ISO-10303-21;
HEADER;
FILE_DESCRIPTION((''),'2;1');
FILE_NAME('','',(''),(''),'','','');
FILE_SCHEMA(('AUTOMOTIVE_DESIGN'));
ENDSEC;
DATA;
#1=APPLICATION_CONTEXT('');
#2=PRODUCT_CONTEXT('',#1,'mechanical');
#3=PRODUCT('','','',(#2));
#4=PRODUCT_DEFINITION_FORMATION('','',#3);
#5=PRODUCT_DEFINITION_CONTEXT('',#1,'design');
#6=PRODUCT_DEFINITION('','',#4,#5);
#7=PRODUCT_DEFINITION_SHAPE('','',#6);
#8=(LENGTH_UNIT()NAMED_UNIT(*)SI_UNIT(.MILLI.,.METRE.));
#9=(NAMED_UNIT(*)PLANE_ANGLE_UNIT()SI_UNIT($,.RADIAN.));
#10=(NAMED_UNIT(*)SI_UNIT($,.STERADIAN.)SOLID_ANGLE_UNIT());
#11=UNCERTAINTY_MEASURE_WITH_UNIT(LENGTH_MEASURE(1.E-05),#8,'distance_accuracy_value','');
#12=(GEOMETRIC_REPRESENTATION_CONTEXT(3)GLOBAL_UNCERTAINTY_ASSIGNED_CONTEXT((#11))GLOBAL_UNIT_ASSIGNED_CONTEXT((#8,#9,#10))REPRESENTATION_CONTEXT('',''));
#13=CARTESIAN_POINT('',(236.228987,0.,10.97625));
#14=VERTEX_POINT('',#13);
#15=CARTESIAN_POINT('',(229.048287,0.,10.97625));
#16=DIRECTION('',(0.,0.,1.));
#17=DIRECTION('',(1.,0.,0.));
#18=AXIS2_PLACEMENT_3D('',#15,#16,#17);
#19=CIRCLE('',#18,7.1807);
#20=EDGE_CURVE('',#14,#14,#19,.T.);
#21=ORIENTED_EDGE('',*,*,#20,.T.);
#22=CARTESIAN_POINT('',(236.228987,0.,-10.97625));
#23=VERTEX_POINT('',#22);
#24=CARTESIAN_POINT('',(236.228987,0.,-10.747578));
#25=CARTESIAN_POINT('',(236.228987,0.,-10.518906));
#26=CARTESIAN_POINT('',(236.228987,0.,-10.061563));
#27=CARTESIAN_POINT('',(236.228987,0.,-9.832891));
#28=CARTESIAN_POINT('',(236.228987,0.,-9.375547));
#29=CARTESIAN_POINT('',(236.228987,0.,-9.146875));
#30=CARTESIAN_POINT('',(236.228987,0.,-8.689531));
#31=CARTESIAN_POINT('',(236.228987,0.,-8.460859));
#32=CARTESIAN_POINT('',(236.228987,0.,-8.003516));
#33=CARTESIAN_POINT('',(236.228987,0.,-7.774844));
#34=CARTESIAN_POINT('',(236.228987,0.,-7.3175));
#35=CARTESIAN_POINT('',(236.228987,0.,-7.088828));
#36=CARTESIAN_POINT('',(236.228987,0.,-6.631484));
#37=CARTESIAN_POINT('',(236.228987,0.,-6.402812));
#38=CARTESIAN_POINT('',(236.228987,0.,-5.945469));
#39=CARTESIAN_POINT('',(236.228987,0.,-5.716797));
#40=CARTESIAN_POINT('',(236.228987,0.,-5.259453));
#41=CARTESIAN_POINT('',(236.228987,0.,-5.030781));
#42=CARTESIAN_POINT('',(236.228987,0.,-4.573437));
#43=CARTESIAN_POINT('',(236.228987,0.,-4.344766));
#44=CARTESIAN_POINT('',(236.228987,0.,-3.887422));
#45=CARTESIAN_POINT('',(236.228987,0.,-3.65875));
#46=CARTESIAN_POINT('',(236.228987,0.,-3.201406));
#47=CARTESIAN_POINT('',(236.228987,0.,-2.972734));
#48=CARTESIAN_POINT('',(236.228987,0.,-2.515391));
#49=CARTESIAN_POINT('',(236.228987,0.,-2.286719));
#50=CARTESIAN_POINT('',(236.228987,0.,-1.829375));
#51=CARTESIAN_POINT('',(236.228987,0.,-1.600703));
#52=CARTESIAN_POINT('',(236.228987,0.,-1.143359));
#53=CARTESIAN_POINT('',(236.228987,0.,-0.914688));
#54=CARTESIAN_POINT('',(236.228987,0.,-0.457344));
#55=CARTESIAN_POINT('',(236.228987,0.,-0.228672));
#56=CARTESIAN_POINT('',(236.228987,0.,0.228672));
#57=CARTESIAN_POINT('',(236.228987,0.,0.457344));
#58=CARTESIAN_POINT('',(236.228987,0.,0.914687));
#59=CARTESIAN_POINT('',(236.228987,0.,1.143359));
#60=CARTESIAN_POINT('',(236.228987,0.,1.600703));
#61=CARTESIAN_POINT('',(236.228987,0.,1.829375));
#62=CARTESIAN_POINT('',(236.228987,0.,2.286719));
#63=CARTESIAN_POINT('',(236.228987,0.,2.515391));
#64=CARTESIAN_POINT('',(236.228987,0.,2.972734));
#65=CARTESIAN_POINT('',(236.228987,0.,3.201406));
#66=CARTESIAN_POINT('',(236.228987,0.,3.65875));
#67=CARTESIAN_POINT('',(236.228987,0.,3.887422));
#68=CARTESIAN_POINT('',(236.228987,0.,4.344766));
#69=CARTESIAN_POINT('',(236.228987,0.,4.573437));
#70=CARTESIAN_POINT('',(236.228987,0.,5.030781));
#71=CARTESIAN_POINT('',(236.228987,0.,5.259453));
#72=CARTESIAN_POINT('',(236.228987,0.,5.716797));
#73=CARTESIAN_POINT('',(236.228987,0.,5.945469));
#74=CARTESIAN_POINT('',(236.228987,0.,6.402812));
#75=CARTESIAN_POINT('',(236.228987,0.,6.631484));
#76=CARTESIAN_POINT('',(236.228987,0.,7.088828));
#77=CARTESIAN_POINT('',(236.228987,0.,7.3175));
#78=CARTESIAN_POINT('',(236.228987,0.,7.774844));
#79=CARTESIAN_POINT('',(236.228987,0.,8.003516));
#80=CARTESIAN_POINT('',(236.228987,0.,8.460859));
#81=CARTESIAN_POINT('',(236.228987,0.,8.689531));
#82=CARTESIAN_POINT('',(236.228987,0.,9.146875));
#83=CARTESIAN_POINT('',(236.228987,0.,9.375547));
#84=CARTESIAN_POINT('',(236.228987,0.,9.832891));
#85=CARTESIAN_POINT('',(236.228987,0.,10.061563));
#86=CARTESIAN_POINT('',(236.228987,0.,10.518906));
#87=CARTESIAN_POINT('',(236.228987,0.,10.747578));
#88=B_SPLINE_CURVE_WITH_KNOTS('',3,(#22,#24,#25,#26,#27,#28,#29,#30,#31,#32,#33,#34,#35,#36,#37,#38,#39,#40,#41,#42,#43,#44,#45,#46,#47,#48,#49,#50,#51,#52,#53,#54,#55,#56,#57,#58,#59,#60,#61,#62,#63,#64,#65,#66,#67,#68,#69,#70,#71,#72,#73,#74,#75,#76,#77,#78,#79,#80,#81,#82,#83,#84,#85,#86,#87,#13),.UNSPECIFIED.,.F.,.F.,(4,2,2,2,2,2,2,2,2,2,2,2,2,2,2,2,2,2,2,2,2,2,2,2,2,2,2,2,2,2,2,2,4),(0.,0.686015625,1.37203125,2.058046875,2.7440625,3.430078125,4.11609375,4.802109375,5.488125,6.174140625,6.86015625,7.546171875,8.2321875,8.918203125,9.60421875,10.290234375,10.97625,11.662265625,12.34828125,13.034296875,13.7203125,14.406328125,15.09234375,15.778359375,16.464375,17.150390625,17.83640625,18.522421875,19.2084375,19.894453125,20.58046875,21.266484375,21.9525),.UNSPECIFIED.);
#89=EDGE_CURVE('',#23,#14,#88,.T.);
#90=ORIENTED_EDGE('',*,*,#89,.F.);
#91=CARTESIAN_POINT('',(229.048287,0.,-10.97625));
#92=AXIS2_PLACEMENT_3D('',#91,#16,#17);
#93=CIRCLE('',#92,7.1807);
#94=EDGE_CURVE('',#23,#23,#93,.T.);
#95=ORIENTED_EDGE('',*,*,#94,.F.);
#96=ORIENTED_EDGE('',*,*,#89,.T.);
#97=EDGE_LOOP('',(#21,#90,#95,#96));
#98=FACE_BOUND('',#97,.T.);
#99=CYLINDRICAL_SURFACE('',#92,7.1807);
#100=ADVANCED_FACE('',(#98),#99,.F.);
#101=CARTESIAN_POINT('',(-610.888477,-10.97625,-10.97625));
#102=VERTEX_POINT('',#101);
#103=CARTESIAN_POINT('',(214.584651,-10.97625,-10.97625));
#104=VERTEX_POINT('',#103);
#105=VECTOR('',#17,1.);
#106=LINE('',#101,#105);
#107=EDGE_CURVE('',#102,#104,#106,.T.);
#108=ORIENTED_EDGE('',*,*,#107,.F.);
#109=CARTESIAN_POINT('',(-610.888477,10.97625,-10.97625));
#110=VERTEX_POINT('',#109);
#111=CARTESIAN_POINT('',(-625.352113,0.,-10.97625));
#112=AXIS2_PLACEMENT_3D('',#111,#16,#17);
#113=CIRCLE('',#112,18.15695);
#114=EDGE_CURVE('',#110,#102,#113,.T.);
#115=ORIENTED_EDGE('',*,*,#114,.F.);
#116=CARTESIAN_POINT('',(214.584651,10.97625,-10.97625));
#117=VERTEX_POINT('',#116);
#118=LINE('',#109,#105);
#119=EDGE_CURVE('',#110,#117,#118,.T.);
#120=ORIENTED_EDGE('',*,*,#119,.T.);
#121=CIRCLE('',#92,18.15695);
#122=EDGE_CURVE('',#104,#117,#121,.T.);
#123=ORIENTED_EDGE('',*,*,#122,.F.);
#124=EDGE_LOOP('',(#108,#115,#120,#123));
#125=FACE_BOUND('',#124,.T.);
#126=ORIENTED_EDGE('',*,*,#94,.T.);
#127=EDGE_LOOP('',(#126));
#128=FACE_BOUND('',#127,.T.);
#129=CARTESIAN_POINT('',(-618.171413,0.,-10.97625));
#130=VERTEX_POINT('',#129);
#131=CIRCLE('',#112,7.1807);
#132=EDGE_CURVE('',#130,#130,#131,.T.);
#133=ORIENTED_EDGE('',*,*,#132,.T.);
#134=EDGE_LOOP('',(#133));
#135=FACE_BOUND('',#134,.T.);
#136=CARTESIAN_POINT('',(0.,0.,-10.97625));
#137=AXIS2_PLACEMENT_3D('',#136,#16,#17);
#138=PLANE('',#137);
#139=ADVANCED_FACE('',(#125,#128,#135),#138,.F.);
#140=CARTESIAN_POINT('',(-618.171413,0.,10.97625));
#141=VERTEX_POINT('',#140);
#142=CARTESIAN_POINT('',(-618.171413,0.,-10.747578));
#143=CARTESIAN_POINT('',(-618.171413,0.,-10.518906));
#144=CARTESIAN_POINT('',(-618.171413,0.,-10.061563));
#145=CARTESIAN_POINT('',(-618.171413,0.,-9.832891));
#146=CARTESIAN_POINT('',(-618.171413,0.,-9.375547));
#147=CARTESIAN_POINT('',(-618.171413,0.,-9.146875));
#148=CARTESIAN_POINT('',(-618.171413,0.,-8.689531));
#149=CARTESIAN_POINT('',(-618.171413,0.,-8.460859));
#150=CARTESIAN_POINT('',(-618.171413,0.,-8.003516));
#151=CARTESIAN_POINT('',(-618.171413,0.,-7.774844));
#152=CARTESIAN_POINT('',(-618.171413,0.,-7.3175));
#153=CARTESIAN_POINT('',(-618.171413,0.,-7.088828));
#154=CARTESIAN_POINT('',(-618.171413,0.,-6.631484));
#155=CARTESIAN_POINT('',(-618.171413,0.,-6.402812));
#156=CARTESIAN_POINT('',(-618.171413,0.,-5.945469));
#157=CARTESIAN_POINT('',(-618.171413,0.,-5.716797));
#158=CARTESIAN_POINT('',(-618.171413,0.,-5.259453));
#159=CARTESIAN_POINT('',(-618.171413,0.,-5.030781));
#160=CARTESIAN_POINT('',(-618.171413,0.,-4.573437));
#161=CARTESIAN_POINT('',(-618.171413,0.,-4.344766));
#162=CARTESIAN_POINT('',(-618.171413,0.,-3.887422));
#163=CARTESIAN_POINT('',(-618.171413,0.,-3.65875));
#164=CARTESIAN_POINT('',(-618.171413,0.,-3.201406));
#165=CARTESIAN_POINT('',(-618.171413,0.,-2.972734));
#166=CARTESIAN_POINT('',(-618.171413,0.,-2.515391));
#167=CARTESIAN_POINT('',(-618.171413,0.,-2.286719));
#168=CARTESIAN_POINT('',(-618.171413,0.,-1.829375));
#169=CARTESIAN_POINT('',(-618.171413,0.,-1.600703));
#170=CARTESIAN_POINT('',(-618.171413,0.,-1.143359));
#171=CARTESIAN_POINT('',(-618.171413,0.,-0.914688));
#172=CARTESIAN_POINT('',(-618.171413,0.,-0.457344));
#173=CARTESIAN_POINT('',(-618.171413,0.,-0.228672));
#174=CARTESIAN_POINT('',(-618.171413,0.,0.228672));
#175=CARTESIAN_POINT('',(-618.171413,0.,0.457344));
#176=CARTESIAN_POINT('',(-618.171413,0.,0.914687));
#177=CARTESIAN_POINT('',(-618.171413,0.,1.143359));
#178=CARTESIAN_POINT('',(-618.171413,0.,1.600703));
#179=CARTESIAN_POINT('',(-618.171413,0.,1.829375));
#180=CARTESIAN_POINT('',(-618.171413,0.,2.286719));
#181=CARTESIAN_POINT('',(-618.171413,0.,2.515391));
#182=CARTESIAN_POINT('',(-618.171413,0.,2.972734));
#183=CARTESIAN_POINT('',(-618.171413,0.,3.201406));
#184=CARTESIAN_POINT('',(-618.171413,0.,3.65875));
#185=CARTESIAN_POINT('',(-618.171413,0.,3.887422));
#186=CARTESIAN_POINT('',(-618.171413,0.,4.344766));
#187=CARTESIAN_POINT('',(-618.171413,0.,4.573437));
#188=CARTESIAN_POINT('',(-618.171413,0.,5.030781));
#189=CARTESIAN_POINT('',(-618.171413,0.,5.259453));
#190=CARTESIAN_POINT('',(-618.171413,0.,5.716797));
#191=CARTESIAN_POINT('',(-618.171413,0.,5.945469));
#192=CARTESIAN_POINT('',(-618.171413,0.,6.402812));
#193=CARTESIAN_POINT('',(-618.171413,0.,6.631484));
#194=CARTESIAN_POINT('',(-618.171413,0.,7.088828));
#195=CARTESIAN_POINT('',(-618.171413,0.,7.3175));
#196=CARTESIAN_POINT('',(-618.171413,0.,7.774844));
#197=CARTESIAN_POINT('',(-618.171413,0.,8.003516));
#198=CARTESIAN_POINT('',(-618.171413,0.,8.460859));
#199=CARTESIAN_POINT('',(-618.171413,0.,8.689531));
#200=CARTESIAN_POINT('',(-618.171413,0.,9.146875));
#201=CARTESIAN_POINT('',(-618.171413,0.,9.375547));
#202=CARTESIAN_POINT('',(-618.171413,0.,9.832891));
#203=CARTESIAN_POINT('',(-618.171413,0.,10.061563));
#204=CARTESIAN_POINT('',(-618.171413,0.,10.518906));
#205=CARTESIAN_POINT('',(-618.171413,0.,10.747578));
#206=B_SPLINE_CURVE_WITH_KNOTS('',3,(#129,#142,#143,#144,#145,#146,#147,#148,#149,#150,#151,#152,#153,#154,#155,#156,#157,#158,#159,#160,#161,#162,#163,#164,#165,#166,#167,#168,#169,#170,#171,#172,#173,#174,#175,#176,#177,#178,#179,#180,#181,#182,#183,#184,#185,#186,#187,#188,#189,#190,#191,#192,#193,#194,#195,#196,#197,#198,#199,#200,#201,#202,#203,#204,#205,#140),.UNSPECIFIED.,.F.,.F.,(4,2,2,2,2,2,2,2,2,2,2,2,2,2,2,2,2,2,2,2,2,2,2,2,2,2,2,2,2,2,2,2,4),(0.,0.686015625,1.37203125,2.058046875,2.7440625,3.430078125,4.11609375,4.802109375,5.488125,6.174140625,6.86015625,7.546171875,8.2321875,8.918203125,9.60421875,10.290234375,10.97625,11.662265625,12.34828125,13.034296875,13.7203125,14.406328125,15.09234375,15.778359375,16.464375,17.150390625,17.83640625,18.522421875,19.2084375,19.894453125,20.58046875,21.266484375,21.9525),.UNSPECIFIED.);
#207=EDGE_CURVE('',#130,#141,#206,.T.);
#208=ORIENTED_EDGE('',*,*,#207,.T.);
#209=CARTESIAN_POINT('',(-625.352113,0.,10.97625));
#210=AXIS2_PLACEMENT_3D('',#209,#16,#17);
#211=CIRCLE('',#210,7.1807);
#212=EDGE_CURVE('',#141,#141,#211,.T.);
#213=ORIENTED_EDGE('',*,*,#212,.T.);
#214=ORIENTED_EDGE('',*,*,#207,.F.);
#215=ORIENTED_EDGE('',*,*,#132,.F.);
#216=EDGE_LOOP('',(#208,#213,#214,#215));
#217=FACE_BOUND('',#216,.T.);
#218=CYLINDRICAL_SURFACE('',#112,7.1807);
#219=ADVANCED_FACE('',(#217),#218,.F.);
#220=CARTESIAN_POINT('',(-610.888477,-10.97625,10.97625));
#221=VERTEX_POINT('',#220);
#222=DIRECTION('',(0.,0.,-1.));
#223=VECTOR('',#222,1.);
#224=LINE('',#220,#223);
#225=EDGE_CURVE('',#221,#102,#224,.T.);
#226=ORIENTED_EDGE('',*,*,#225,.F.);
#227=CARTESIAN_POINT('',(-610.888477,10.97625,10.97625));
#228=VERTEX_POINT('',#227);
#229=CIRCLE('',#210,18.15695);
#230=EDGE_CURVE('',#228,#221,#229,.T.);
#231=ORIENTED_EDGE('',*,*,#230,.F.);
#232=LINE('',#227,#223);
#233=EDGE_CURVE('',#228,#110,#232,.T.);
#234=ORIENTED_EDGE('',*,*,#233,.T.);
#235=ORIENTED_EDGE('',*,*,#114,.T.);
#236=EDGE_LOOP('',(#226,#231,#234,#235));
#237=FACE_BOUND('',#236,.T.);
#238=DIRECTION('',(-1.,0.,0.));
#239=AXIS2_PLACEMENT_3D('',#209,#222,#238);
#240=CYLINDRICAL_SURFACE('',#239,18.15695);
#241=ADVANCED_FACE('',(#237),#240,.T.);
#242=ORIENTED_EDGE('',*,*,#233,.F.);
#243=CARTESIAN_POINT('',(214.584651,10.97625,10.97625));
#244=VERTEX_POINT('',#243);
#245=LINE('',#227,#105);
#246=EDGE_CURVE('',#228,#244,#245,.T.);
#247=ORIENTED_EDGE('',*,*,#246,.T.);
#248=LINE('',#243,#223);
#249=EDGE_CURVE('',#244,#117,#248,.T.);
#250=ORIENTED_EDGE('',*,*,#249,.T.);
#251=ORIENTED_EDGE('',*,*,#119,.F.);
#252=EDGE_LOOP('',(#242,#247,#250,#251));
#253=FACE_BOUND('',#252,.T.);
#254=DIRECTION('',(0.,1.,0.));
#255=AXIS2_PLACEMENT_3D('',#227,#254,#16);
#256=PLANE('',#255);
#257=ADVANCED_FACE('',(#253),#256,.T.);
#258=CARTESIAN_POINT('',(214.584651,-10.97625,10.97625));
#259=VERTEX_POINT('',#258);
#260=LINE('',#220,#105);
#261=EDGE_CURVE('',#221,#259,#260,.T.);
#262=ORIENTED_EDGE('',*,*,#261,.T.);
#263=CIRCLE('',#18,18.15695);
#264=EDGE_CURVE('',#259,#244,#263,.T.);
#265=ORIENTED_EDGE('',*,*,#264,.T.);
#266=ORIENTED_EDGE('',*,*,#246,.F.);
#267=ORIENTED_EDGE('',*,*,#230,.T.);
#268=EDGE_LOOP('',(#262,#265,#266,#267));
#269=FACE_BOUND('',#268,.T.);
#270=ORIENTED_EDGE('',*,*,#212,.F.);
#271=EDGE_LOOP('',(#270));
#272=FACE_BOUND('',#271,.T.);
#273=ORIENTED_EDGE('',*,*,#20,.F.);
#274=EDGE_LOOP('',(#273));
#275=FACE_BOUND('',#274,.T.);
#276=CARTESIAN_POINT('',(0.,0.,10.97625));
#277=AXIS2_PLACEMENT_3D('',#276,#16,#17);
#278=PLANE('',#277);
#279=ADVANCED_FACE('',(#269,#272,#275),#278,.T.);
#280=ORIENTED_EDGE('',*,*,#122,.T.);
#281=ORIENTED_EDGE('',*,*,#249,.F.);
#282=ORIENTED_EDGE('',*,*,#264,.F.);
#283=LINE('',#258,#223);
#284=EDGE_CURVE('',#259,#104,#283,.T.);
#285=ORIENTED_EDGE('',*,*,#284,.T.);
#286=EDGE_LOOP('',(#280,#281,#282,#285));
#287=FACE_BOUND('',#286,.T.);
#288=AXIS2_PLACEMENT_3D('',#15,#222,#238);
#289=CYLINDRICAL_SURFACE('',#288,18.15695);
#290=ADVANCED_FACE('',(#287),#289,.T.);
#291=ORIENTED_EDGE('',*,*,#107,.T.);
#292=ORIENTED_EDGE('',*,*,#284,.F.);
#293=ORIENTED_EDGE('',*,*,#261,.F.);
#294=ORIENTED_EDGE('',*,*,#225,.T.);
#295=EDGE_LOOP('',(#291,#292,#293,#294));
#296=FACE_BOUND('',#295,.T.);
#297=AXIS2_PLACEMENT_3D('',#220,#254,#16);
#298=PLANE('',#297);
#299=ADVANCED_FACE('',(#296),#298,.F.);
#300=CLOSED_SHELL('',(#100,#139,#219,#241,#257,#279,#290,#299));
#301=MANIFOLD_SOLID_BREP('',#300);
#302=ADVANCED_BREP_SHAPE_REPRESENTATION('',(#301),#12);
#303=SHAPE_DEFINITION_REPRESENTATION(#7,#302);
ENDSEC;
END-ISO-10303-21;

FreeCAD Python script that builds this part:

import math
import FreeCAD as App
import Part
import Sketcher
from FreeCAD import Vector
Q = App.Units.Quantity

doc = App.newDocument("Part")
body = doc.addObject("PartDesign::Body", "Body")

# Sketch on XY plane
sketch1 = body.newObject("Sketcher::SketchObject", "Sketch")
sketch1.AttachmentSupport = (doc.getObject("XY_Plane"), [""])
sketch1.MapMode = "FlatFace"
sketch1.addGeometry([
    Part.LineSegment(Vector(-610.888477, -10.97625, 0), Vector(214.584651, -10.97625, 0)),
    Part.ArcOfCircle(Part.Circle(Vector(229.048287, 0, 0), Vector(0, 0, 1), 18.15695), math.radians(-142.805649), math.radians(142.805649)),
    Part.LineSegment(Vector(214.584651, 10.97625, 0), Vector(-610.888477, 10.97625, 0)),
    Part.ArcOfCircle(Part.Circle(Vector(-625.352113, 0, 0), Vector(0, 0, 1), 18.15695), math.radians(37.194351), math.radians(322.805649)),
], False)
sketch1.addConstraint([
    Sketcher.Constraint("Coincident", 0, 2, 1, 1),
    Sketcher.Constraint("Coincident", 1, 2, 2, 1),
    Sketcher.Constraint("Coincident", 2, 2, 3, 1),
    Sketcher.Constraint("Coincident", 3, 2, 0, 1),
    Sketcher.Constraint("Horizontal", 0),
    Sketcher.Constraint("Horizontal", 2),
    Sketcher.Constraint("Equal", 1, 3),
    Sketcher.Constraint("Symmetric", 0, 2, 1, 2, -1),
    Sketcher.Constraint("PointOnObject", 3, 3, -1),
    Sketcher.Constraint("Radius", 1, Q("18.15695 mm")),
    Sketcher.Constraint("DistanceX", 3, 3, 1, 3, Q("854.4004 mm")),
    Sketcher.Constraint("DistanceY", 0, 2, 1, 2, Q("21.9525 mm")),
    Sketcher.Constraint("DistanceX", -1, 1, 0, 2, Q("214.584651 mm")),
])
pad1 = body.newObject("PartDesign::Pad", "Pad")
pad1.Profile = sketch1
pad1.Length = 21.9525
pad1.Midplane = True

# Sketch on XY plane
sketch2 = body.newObject("Sketcher::SketchObject", "Sketch001")
sketch2.AttachmentSupport = (doc.getObject("XY_Plane"), [""])
sketch2.MapMode = "FlatFace"
sketch2.AttachmentOffset = App.Placement(Vector(0, 0, 10.97625), App.Rotation())
sketch2.addGeometry([
    Part.Circle(Vector(-625.352113, 0, 0), Vector(0, 0, 1), 7.1807),
    Part.Circle(Vector(229.048287, 0, 0), Vector(0, 0, 1), 7.1807),
], False)
sketch2.addConstraint([
    Sketcher.Constraint("Equal", 0, 1),
    Sketcher.Constraint("PointOnObject", 0, 3, -1),
    Sketcher.Constraint("PointOnObject", 1, 3, -1),
    Sketcher.Constraint("Diameter", 0, Q("14.3614 mm")),
    Sketcher.Constraint("DistanceX", 0, 3, 1, 3, Q("854.4004 mm")),
    Sketcher.Constraint("DistanceX", 0, 3, -1, 1, Q("625.352113 mm")),
])
pocket1 = body.newObject("PartDesign::Pocket", "Pocket")
pocket1.Profile = sketch2
pocket1.Type = "ThroughAll"

doc.recompute()
